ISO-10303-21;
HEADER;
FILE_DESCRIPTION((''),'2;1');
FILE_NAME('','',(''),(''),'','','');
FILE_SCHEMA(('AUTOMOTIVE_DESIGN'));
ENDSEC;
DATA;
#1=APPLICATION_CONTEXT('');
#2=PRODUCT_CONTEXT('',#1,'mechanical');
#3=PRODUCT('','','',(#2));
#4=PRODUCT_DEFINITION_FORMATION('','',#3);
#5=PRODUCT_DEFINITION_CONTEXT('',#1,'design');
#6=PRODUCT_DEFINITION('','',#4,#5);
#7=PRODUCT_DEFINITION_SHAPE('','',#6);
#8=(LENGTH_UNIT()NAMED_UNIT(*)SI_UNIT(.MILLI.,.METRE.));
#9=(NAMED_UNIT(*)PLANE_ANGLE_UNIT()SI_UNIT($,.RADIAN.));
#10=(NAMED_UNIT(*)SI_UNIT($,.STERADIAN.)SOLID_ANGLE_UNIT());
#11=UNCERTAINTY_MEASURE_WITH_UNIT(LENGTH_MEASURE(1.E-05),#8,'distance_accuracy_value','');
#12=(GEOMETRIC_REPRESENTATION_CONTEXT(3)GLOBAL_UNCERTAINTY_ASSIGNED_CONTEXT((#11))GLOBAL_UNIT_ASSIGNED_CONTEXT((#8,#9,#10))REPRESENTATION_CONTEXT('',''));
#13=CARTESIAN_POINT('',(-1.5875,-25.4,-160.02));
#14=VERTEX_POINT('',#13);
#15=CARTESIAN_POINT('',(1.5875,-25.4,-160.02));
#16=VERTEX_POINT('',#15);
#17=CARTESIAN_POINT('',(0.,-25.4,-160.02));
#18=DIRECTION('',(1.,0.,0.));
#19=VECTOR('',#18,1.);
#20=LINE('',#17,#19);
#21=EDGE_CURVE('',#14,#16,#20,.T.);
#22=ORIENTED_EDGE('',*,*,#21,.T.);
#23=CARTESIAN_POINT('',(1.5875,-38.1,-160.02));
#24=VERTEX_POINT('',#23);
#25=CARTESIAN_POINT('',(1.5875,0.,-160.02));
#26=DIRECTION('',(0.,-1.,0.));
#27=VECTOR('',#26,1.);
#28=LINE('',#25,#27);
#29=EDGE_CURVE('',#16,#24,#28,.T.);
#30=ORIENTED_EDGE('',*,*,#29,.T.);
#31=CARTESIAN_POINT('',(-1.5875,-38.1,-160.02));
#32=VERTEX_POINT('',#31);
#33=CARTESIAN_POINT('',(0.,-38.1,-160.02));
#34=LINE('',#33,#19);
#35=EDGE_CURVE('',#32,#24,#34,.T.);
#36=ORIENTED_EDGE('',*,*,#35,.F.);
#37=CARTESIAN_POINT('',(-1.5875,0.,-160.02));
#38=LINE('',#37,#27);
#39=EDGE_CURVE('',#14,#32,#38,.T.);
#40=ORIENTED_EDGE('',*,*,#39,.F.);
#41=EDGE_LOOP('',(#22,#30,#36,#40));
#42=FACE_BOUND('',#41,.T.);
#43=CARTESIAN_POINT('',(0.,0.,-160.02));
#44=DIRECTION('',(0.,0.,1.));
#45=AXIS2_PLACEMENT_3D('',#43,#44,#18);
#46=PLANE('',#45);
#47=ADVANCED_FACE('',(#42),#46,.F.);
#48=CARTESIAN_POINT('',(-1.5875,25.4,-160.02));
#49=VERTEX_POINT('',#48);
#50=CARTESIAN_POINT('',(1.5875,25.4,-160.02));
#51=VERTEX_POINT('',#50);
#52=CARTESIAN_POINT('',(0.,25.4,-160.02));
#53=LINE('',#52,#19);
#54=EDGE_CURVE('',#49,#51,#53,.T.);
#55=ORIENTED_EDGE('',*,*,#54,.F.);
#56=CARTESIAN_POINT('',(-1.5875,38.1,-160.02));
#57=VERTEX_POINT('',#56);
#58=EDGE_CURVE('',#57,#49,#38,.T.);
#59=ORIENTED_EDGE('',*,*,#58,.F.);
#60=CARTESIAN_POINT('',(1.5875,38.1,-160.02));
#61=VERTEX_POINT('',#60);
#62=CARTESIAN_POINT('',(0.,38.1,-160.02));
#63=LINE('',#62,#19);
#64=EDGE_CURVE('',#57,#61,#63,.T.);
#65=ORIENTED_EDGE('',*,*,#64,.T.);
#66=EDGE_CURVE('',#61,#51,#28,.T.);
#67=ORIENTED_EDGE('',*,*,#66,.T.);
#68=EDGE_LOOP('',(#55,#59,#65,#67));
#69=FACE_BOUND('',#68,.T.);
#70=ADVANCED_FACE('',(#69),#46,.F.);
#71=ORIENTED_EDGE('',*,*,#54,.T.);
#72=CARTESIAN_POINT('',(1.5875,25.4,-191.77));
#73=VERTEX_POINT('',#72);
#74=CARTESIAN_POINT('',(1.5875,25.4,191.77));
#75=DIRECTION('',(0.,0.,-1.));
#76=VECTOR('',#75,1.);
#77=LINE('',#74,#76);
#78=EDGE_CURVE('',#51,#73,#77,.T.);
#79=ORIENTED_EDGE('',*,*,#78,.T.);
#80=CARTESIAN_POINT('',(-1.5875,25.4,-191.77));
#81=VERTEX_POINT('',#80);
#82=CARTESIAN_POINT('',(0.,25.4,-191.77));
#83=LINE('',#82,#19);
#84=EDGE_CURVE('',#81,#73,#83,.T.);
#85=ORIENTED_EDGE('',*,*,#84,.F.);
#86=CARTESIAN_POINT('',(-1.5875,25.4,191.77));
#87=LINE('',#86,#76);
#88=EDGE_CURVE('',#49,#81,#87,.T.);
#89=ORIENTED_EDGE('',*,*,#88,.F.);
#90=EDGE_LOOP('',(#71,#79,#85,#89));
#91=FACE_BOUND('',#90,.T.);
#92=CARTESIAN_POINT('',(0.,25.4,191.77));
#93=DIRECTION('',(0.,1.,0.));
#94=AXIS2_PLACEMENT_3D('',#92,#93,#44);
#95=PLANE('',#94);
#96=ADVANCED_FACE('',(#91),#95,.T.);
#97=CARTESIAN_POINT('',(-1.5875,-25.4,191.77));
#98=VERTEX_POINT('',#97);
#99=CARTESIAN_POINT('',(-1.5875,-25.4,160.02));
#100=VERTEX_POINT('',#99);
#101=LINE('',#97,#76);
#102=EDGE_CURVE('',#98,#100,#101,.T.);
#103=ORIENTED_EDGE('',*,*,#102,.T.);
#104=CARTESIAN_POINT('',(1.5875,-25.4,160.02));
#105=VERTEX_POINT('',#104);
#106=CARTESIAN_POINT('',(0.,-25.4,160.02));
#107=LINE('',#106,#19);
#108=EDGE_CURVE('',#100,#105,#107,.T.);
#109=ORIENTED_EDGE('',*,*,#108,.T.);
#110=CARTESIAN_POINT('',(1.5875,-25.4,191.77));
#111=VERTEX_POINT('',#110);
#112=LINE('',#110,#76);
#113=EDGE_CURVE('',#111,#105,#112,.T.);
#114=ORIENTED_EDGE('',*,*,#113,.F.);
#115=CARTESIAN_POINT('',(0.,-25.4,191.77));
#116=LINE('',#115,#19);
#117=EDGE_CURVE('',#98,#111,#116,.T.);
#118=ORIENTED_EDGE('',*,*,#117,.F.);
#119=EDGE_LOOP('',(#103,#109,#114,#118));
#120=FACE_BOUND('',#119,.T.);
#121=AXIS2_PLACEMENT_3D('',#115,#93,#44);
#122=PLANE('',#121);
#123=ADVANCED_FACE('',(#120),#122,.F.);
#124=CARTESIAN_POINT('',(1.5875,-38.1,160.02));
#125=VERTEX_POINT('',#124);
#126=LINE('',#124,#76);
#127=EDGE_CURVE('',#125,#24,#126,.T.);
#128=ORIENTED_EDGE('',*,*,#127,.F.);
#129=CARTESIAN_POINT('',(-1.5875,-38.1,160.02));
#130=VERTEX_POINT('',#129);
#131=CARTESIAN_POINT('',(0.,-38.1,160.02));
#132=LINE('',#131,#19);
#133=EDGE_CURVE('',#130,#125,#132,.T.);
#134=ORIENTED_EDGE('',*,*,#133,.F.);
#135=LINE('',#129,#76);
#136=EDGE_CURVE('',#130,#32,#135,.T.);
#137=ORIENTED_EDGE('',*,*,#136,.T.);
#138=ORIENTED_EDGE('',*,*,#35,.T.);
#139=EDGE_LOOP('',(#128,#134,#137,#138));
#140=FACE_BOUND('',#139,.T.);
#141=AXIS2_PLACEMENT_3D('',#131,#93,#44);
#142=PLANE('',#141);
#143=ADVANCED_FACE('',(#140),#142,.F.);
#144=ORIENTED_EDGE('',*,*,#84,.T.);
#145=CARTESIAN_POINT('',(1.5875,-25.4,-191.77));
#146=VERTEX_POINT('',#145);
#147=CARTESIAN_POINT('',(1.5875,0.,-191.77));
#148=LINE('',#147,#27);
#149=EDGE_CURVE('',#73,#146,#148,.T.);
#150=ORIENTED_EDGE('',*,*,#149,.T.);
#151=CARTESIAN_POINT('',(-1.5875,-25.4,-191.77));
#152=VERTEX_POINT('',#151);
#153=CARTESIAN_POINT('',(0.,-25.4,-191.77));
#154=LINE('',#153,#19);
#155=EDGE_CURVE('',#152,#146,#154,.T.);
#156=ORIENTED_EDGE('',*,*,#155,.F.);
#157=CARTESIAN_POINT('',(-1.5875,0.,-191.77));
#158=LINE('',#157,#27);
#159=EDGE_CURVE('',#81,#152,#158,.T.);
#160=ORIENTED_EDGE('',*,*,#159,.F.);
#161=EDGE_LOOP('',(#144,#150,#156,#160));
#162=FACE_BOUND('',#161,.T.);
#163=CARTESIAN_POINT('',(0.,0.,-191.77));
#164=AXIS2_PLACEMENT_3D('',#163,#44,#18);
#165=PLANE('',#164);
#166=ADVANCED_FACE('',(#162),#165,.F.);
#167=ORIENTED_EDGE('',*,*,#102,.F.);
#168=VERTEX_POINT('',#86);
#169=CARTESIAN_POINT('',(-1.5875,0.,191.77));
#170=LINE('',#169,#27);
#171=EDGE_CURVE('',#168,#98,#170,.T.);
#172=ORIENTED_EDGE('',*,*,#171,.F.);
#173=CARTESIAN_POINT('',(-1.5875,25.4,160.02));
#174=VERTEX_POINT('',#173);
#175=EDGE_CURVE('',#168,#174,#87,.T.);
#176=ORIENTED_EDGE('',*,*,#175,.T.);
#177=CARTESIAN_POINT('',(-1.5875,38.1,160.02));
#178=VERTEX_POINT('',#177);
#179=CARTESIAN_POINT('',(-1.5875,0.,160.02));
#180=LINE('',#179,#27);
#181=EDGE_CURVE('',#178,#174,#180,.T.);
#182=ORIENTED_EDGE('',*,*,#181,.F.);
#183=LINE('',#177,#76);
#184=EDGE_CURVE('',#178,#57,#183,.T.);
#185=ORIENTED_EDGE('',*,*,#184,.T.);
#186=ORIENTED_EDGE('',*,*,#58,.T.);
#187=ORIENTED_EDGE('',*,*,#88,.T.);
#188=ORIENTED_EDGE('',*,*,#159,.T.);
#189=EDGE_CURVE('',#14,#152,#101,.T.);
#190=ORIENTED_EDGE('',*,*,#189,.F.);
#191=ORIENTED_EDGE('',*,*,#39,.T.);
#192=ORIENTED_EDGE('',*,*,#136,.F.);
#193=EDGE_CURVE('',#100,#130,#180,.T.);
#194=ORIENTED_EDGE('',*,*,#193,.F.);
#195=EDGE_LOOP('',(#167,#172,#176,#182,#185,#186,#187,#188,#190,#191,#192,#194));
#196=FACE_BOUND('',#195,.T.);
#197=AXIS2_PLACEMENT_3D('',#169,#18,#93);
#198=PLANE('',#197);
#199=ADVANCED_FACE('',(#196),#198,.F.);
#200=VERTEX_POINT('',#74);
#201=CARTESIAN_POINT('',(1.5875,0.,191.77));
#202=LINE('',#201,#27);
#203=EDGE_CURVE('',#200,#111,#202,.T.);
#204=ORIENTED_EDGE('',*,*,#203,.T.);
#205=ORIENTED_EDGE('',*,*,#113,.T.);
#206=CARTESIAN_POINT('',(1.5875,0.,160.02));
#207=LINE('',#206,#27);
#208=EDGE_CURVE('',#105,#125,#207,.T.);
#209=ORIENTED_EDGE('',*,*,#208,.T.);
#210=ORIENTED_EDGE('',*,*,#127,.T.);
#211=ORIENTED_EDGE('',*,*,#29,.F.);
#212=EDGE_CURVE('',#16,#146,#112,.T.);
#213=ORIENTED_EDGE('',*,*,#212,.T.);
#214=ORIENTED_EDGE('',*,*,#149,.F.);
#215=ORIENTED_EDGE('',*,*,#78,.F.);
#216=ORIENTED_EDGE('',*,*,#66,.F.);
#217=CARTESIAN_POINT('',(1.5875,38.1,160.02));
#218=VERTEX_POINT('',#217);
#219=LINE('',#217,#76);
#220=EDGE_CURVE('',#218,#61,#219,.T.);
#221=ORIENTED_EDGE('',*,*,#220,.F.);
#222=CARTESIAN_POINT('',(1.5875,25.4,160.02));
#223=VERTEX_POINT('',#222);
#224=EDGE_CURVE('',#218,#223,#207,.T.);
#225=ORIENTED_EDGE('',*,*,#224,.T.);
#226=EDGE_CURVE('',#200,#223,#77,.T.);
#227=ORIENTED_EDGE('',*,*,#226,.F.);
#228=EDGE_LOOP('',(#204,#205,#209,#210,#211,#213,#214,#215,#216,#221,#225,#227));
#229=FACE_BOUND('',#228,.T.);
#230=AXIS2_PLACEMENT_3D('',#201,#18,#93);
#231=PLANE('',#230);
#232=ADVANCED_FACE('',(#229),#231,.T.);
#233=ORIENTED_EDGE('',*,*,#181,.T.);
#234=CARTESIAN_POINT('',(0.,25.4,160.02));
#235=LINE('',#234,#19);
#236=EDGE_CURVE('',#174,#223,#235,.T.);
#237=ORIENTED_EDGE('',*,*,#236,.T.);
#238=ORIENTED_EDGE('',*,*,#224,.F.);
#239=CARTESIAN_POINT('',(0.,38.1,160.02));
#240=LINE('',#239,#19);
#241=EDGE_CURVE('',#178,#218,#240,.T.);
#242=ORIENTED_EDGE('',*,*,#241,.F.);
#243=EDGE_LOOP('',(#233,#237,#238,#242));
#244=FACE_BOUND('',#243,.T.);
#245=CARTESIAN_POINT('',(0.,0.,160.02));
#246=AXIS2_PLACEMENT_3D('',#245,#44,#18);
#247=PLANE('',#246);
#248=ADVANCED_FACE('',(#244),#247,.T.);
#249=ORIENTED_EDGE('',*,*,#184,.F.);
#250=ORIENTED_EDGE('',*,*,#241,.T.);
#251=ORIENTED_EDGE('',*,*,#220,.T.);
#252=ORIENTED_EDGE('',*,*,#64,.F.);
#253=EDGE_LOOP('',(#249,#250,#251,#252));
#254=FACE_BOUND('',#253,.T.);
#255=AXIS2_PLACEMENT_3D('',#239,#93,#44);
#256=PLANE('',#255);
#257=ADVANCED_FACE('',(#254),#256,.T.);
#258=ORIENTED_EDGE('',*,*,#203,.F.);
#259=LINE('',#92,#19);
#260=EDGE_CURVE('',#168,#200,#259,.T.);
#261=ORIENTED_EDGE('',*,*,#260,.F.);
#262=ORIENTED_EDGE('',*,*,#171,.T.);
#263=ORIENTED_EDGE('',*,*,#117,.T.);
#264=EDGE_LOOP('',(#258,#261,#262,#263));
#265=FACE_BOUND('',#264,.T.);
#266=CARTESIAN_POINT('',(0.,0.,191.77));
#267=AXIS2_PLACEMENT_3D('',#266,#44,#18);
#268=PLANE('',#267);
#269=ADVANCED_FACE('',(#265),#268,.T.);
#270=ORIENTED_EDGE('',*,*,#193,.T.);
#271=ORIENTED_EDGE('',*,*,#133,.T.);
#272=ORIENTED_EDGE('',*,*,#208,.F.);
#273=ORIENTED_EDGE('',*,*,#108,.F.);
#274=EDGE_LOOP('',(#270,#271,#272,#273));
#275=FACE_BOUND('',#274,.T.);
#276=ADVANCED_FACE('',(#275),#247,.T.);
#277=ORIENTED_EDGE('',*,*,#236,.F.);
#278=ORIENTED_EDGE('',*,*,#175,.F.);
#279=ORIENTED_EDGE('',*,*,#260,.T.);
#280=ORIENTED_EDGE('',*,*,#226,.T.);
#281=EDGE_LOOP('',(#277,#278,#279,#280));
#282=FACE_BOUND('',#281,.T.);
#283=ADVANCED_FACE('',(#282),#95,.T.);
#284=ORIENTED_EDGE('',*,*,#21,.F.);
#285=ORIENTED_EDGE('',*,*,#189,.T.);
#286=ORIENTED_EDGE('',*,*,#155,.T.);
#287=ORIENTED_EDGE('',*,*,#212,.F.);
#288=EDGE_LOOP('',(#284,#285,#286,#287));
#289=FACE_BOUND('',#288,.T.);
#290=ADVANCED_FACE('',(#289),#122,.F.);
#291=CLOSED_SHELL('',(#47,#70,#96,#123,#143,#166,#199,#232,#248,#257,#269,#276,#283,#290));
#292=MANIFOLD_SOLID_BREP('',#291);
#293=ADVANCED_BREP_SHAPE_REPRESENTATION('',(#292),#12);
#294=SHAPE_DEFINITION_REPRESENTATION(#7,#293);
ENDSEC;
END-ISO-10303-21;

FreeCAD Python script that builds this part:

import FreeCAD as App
import Part
import Sketcher
Q = App.Units.Quantity


def add_polygon(sketch, points):
    """Adds a closed chain of lines whose ends are joined by coincident constraints."""
    first, n = sketch.GeometryCount, len(points)
    for a, b in zip(points, points[1:] + points[:1]):
        sketch.addGeometry(Part.LineSegment(App.Vector(*a, 0), App.Vector(*b, 0)), False)
    for i in range(n):
        sketch.addConstraint(Sketcher.Constraint("Coincident", first + i, 2, first + (i + 1) % n, 1))

doc = App.newDocument("Part")
params = doc.addObject("Spreadsheet::Sheet", "Params")
for row, (alias, value) in enumerate([
    ("sketch1_height", "2 in"),
    ("sketch1_width", "0.125 in"),
    ("pad1_length", "15.1 in"),
    ("sketch2_height", "0.5 in"),
    ("sketch2_width", "0.125 in"),
    ("pad2_length", "12.6 in"),
], start=1):
    params.set(f"A{row}", alias)
    params.set(f"B{row}", "=" + value)
    params.setAlias(f"B{row}", alias)

body = doc.addObject("PartDesign::Body", "Body")

sketch1 = doc.addObject("Sketcher::SketchObject", "Sketch")
body.addObject(sketch1)
sketch1.AttachmentSupport = (doc.XY_Plane, [""])
sketch1.MapMode = "FlatFace"
add_polygon(sketch1, [(-1.6, 25.4), (-1.6, -25.4), (1.6, -25.4), (1.6, 25.4)])
sketch1.addConstraint([
    Sketcher.Constraint("Vertical", 0),
    Sketcher.Constraint("Horizontal", 1),
    Sketcher.Constraint("Vertical", 2),
    Sketcher.Constraint("Horizontal", 3),
    Sketcher.Constraint("Symmetric", 0, 2, 2, 2, -1, 1),
    Sketcher.Constraint("DistanceY", 0, 2, 0, 1, Q("2 in")),
    Sketcher.Constraint("DistanceX", 1, 1, 1, 2, Q("0.125 in")),
])
sketch1.setExpression("Constraints[9]", "Params.sketch1_height")
sketch1.setExpression("Constraints[10]", "Params.sketch1_width")
pad1 = doc.addObject("PartDesign::Pad", "Pad")
body.addObject(pad1)
pad1.Profile = sketch1
pad1.setExpression("Length", "Params.pad1_length")
pad1.Midplane = True

sketch2 = doc.addObject("Sketcher::SketchObject", "Sketch001")
body.addObject(sketch2)
sketch2.AttachmentSupport = (doc.XY_Plane, [""])
sketch2.MapMode = "FlatFace"
add_polygon(sketch2, [(-1.6, 38.1), (-1.6, 25.4), (1.6, 25.4), (1.6, 38.1)])
add_polygon(sketch2, [(-1.6, -25.4), (-1.6, -38.1), (1.6, -38.1), (1.6, -25.4)])
sketch2.addConstraint([
    Sketcher.Constraint("Vertical", 0),
    Sketcher.Constraint("Horizontal", 1),
    Sketcher.Constraint("Vertical", 2),
    Sketcher.Constraint("Horizontal", 3),
    Sketcher.Constraint("Vertical", 4),
    Sketcher.Constraint("Horizontal", 5),
    Sketcher.Constraint("Vertical", 6),
    Sketcher.Constraint("Horizontal", 7),
    Sketcher.Constraint("Symmetric", 2, 2, 4, 2, -1, 1),
    Sketcher.Constraint("Symmetric", 0, 2, 6, 2, -1, 1),
    Sketcher.Constraint("Vertical", 3, 2, 4, 2),
    Sketcher.Constraint("DistanceY", 0, 2, 0, 1, Q("0.5 in")),
    Sketcher.Constraint("DistanceY", -1, 1, 0, 2, Q("1 in")),
    Sketcher.Constraint("DistanceX", 1, 1, 1, 2, Q("0.125 in")),
])
sketch2.setExpression("Constraints[19]", "Params.sketch2_height")
sketch2.setExpression("Constraints[21]", "Params.sketch2_width")
pad2 = doc.addObject("PartDesign::Pad", "Pad001")
body.addObject(pad2)
pad2.Profile = sketch2
pad2.setExpression("Length", "Params.pad2_length")
pad2.Midplane = True

doc.recompute()
